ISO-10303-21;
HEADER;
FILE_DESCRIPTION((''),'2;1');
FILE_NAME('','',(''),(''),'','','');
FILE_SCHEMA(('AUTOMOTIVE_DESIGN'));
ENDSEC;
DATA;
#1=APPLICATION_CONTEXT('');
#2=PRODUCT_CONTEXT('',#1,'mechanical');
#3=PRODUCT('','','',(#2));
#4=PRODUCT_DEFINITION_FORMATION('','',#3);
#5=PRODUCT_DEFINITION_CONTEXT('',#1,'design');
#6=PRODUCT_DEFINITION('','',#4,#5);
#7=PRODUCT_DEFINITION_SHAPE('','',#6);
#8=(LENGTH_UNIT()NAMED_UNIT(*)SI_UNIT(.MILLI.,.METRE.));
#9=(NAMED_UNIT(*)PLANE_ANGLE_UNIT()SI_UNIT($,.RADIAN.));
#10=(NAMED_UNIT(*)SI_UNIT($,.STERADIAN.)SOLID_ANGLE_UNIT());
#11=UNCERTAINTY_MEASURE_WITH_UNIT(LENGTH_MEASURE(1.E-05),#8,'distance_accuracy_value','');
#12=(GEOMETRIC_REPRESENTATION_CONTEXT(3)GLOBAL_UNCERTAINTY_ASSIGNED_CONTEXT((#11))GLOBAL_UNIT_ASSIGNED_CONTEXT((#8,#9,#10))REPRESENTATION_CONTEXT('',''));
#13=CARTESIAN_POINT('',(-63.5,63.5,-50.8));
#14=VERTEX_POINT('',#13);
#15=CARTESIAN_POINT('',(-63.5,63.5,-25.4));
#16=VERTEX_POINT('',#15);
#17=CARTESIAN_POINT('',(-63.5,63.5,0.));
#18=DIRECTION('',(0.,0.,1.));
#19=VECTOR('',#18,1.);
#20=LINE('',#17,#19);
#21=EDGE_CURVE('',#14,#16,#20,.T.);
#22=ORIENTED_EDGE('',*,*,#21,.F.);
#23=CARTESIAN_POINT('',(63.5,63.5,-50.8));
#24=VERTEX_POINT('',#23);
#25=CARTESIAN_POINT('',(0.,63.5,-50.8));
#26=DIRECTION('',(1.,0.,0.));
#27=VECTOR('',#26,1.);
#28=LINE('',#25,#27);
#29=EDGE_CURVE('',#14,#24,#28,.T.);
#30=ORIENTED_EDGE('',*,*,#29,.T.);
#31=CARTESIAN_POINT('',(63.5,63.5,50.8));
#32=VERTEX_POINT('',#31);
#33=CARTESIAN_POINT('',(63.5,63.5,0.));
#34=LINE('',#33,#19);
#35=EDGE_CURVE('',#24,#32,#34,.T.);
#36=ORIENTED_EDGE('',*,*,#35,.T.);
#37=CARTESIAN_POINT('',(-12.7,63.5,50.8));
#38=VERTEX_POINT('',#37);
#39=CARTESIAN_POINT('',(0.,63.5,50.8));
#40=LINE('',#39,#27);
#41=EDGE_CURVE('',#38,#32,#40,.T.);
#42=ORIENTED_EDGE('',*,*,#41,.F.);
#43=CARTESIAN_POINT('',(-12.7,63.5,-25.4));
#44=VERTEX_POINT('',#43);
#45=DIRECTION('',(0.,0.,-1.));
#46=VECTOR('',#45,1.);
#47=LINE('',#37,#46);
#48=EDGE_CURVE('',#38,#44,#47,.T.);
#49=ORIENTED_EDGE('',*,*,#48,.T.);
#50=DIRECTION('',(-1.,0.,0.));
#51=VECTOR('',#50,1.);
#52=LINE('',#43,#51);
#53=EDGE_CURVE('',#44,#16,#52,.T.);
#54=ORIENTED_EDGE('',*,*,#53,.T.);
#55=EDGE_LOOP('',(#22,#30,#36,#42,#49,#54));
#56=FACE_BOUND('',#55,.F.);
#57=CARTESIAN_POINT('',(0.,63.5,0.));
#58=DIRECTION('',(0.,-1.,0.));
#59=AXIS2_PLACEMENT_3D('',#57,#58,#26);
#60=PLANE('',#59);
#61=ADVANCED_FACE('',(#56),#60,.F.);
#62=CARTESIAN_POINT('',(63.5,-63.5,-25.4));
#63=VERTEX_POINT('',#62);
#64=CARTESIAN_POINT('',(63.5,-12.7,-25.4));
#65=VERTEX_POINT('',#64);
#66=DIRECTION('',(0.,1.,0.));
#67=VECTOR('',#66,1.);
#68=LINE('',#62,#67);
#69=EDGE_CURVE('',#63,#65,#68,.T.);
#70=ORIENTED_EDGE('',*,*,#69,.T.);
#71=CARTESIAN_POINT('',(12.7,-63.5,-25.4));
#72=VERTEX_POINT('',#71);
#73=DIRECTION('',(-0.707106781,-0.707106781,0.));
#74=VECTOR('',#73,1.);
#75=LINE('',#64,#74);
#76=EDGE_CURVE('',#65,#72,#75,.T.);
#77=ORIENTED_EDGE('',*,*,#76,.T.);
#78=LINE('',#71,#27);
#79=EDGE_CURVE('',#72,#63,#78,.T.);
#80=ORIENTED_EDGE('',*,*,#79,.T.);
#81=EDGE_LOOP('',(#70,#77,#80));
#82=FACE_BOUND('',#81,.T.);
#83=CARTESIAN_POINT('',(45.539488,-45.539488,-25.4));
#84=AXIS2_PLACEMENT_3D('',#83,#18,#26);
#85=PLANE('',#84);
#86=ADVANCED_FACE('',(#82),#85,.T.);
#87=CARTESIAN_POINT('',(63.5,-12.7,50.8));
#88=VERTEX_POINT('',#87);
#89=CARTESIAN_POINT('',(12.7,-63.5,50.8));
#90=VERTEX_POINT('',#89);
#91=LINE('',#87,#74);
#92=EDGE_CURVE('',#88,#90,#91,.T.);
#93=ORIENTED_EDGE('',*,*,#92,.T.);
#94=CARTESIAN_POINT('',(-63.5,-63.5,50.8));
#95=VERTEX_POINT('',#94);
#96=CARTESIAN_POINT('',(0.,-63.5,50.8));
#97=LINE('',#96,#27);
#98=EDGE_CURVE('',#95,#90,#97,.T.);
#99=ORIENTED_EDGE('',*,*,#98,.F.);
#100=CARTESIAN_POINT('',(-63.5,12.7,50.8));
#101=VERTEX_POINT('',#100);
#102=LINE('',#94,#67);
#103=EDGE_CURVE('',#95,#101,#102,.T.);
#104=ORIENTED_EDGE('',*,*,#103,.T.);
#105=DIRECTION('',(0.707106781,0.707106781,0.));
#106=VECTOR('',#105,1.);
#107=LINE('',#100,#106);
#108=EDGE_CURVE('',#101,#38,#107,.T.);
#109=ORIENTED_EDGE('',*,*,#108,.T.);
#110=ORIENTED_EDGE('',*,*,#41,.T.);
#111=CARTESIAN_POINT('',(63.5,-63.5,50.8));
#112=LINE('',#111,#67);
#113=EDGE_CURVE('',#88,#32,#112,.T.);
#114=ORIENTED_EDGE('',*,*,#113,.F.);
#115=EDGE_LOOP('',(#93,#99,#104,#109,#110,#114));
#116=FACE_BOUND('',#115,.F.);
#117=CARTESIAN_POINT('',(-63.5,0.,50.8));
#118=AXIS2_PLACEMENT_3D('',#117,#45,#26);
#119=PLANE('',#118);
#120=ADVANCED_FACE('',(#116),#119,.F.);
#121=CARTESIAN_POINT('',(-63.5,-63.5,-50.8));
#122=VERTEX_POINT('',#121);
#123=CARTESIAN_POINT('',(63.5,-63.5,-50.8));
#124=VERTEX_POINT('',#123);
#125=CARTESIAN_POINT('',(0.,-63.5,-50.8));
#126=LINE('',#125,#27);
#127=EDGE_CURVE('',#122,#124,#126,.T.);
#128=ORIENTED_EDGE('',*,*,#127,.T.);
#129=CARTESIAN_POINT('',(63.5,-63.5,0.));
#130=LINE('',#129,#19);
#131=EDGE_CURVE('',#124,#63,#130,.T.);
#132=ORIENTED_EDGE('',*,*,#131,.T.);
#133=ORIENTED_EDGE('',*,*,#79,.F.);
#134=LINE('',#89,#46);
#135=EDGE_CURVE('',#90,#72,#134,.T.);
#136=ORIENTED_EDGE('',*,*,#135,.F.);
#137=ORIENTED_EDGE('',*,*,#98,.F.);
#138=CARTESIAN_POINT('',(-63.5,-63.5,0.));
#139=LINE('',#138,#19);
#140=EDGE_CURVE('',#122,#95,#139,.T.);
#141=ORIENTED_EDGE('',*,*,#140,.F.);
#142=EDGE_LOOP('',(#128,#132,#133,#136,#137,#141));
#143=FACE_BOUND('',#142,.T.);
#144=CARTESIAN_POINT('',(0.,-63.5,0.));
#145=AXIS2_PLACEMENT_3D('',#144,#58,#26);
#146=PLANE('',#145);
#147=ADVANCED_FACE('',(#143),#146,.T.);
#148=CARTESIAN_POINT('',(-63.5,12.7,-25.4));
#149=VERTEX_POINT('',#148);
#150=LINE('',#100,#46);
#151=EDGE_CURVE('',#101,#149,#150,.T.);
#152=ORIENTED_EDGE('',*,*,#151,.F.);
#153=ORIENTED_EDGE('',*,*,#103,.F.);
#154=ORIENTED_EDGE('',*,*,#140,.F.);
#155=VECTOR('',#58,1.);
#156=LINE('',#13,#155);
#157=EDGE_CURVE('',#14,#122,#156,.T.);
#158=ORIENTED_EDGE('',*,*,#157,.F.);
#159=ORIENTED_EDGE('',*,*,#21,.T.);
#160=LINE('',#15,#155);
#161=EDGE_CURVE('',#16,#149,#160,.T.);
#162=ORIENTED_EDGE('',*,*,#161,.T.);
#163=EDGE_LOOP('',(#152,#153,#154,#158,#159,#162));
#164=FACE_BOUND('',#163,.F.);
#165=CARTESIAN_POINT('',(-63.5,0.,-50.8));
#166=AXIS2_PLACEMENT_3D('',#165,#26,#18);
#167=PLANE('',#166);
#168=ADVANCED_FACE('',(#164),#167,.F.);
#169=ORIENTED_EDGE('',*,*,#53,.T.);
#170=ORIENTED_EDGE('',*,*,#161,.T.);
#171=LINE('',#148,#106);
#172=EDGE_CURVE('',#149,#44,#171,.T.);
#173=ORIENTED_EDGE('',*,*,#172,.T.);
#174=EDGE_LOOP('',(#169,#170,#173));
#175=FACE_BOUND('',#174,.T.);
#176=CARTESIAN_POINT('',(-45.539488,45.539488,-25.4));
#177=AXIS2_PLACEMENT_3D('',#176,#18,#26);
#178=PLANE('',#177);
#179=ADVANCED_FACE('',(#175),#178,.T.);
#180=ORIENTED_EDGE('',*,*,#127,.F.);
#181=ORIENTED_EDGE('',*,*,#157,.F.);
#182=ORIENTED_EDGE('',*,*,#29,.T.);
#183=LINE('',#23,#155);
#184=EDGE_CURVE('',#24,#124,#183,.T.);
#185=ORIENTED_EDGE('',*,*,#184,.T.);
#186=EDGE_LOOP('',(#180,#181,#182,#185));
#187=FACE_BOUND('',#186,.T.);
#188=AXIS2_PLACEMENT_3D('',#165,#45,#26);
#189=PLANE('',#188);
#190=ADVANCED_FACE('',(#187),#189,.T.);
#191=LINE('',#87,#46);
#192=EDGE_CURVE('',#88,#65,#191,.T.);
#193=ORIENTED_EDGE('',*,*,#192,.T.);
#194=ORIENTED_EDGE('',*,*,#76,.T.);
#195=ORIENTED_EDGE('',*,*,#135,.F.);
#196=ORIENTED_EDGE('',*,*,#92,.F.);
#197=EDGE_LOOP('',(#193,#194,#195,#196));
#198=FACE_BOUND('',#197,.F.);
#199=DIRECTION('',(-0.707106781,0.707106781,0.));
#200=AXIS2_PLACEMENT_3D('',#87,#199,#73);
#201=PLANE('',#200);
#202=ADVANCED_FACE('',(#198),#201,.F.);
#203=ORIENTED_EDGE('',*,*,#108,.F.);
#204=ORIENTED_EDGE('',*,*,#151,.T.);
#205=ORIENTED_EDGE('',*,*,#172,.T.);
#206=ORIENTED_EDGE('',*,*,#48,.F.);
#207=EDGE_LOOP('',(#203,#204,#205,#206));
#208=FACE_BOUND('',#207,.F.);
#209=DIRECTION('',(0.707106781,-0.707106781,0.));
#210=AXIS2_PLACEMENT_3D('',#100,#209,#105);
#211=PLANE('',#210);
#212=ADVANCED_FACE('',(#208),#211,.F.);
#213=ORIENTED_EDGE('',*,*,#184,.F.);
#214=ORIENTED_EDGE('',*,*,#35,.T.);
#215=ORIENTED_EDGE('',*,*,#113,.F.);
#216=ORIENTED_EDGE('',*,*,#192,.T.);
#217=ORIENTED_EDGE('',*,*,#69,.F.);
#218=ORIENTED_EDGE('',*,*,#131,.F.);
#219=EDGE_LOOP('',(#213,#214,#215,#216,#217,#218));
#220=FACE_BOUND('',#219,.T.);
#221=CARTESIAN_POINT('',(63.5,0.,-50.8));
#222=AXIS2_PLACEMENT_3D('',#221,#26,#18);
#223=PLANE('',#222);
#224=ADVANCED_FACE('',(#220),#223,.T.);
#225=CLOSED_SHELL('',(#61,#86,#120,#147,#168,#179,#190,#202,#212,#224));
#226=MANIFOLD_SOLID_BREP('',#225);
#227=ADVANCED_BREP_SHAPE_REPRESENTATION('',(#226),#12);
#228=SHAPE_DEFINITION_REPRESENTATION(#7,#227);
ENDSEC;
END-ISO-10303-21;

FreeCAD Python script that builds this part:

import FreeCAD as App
import Part
import Sketcher
from FreeCAD import Vector
Q = App.Units.Quantity

doc = App.newDocument("Part")
body = doc.addObject("PartDesign::Body", "Body")

sketch1 = body.newObject("Sketcher::SketchObject", "Sketch")
sketch1.AttachmentSupport = (doc.getObject("XZ_Plane"), [""])
sketch1.MapMode = "FlatFace"
sketch1.addGeometry([
    Part.LineSegment(Vector(-64, 51, 0), Vector(-64, -51, 0)),
    Part.LineSegment(Vector(-64, -51, 0), Vector(64, -51, 0)),
    Part.LineSegment(Vector(64, -51, 0), Vector(64, 51, 0)),
    Part.LineSegment(Vector(64, 51, 0), Vector(-64, 51, 0)),
], False)
sketch1.addConstraint([
    Sketcher.Constraint("Coincident", 0, 2, 1, 1),
    Sketcher.Constraint("Coincident", 1, 2, 2, 1),
    Sketcher.Constraint("Coincident", 2, 2, 3, 1),
    Sketcher.Constraint("Coincident", 3, 2, 0, 1),
    Sketcher.Constraint("Vertical", 0),
    Sketcher.Constraint("Horizontal", 1),
    Sketcher.Constraint("Vertical", 2),
    Sketcher.Constraint("Horizontal", 3),
    Sketcher.Constraint("Symmetric", 0, 2, 2, 2, -1, 1),
    Sketcher.Constraint("DistanceX", 1, 1, 1, 2, Q("5 in")),
    Sketcher.Constraint("DistanceY", 0, 2, 0, 1, Q("4 in")),
])
pad1 = body.newObject("PartDesign::Pad", "Pad")
pad1.Profile = sketch1
pad1.Length = Q("5 in")
pad1.Midplane = True

sketch2 = body.newObject("Sketcher::SketchObject", "Sketch001")
sketch2.AttachmentSupport = (doc.getObject("XY_Plane"), [""])
sketch2.MapMode = "FlatFace"
sketch2.AttachmentOffset = App.Placement(Vector(0, 0, 2 * 25.4), App.Rotation())
sketch2.addGeometry([
    Part.LineSegment(Vector(-13, 64, 0), Vector(-64, 64, 0)),
    Part.LineSegment(Vector(-64, 64, 0), Vector(-64, 13, 0)),
    Part.LineSegment(Vector(-64, 13, 0), Vector(-13, 64, 0)),
], False)
sketch2.addConstraint([
    Sketcher.Constraint("Coincident", 0, 2, 1, 1),
    Sketcher.Constraint("Coincident", 1, 2, 2, 1),
    Sketcher.Constraint("Coincident", 2, 2, 0, 1),
    Sketcher.Constraint("Horizontal", 0),
    Sketcher.Constraint("Vertical", 1),
    Sketcher.Constraint("Equal", 0, 1),
    Sketcher.Constraint("DistanceX", 0, 2, 0, 1, Q("2 in")),
    Sketcher.Constraint("DistanceX", 0, 2, -1, 1, Q("2.5 in")),
    Sketcher.Constraint("DistanceY", -1, 1, 0, 2, Q("2.5 in")),
])
pocket1 = body.newObject("PartDesign::Pocket", "Pocket")
pocket1.Profile = sketch2
pocket1.Length = Q("3 in")

sketch3 = body.newObject("Sketcher::SketchObject", "Sketch002")
sketch3.AttachmentSupport = (doc.getObject("XY_Plane"), [""])
sketch3.MapMode = "FlatFace"
sketch3.AttachmentOffset = App.Placement(Vector(0, 0, 2 * 25.4), App.Rotation())
sketch3.addGeometry([
    Part.LineSegment(Vector(64, -64, 0), Vector(64, -13, 0)),
    Part.LineSegment(Vector(64, -13, 0), Vector(13, -64, 0)),
    Part.LineSegment(Vector(13, -64, 0), Vector(64, -64, 0)),
], False)
sketch3.addConstraint([
    Sketcher.Constraint("Coincident", 0, 2, 1, 1),
    Sketcher.Constraint("Coincident", 1, 2, 2, 1),
    Sketcher.Constraint("Coincident", 2, 2, 0, 1),
    Sketcher.Constraint("Vertical", 0),
    Sketcher.Constraint("Horizontal", 2),
    Sketcher.Constraint("Equal", 2, 0),
    Sketcher.Constraint("DistanceX", 2, 1, 2, 2, Q("2 in")),
    Sketcher.Constraint("DistanceX", -1, 1, 0, 2, Q("2.5 in")),
    Sketcher.Constraint("DistanceY", 0, 2, -1, 1, Q("0.5 in")),
])
pocket2 = body.newObject("PartDesign::Pocket", "Pocket001")
pocket2.Profile = sketch3
pocket2.Length = Q("3 in")

doc.recompute()
